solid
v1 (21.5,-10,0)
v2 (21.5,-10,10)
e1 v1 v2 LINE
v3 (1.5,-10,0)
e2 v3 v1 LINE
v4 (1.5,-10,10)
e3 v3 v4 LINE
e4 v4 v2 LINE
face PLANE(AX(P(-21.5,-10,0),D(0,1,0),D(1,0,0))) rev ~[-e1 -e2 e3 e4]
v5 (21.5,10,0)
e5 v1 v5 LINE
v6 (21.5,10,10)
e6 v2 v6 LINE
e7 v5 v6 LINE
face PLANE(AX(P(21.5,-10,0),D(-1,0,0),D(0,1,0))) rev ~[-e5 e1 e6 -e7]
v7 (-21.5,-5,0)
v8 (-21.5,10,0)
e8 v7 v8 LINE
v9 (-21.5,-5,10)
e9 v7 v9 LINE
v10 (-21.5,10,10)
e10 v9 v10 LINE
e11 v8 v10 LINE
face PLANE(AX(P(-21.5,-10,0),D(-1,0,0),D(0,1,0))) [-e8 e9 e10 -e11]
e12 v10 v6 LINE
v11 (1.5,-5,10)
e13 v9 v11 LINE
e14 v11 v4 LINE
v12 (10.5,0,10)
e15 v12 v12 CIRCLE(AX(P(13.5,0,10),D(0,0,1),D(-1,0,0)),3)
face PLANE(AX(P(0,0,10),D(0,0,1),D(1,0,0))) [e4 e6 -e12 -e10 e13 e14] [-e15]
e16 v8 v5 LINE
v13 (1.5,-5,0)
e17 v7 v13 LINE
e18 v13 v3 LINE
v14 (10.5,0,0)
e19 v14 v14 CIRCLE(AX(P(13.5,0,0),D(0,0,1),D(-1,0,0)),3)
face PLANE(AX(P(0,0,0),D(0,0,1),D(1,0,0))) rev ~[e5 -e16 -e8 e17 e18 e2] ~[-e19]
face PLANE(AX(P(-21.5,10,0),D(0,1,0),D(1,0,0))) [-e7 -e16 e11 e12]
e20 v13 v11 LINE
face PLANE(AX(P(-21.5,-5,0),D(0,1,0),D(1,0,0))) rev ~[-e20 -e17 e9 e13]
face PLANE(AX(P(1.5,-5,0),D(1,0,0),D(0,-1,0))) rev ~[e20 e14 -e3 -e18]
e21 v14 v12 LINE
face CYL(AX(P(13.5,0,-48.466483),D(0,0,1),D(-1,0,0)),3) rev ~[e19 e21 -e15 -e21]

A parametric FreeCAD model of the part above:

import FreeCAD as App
import Part
import Sketcher
from FreeCAD import Vector


def add_polygon(sketch, points):
    """Adds a closed chain of lines whose ends are joined by coincident constraints."""
    first, n = sketch.GeometryCount, len(points)
    for a, b in zip(points, points[1:] + points[:1]):
        sketch.addGeometry(Part.LineSegment(App.Vector(*a, 0), App.Vector(*b, 0)), False)
    for i in range(n):
        sketch.addConstraint(Sketcher.Constraint("Coincident", first + i, 2, first + (i + 1) % n, 1))

doc = App.newDocument("Part")
body = doc.addObject("PartDesign::Body", "Body")

# Sketch on XY plane
sketch1 = body.newObject("Sketcher::SketchObject", "Sketch")
sketch1.AttachmentSupport = (doc.getObject("XY_Plane"), [""])
sketch1.MapMode = "FlatFace"
add_polygon(sketch1, [(-22, 10), (-22, -10), (22, -10), (22, 10)])  # lines 0-3
sketch1.addConstraint([
    Sketcher.Constraint("Vertical", 0),
    Sketcher.Constraint("Horizontal", 1),
    Sketcher.Constraint("Vertical", 2),
    Sketcher.Constraint("Horizontal", 3),
    Sketcher.Constraint("Symmetric", 0, 2, 2, 2, -1, 1),
    Sketcher.Constraint("DistanceX", 1, 1, 1, 2, 43.0),
    Sketcher.Constraint("DistanceY", 0, 2, 0, 1, 20.0),
])
pad1 = body.newObject("PartDesign::Pad", "Pad")
pad1.Profile = sketch1
pad1.Length = 10

# Sketch on XY plane
sketch2 = body.newObject("Sketcher::SketchObject", "Sketch001")
sketch2.AttachmentSupport = (doc.getObject("XY_Plane"), [""])
sketch2.MapMode = "FlatFace"
sketch2.addGeometry(Part.Circle(Vector(13.5, 0, 0), Vector(0, 0, 1), 3), False)
sketch2.addConstraint([
    Sketcher.Constraint("PointOnObject", 0, 3, -1),
    Sketcher.Constraint("Diameter", 0, 6.0),
    Sketcher.Constraint("DistanceX", -1, 1, 0, 3, 13.5),
])
doc.recompute()
hole = body.newObject("PartDesign::Hole", "Hole")
hole.Profile = sketch2
hole.ThreadType = "None"
hole.Diameter = 6
hole.DepthType = "ThroughAll"
hole.Reversed = True

# Sketch on XY plane
sketch3 = body.newObject("Sketcher::SketchObject", "Sketch002")
sketch3.AttachmentSupport = (doc.getObject("XY_Plane"), [""])
sketch3.MapMode = "FlatFace"
add_polygon(sketch3, [(-22, -10), (-22, -5), (2, -5), (2, -10)])  # lines 0-3
sketch3.addConstraint([
    Sketcher.Constraint("Vertical", 0),
    Sketcher.Constraint("Horizontal", 1),
    Sketcher.Constraint("Vertical", 2),
    Sketcher.Constraint("Horizontal", 3),
    Sketcher.Constraint("DistanceX", 1, 1, 1, 2, 23.0),
    Sketcher.Constraint("DistanceY", 0, 1, 0, 2, 5.0),
    Sketcher.Constraint("DistanceY", 0, 2, -1, 1, 5.0),
    Sketcher.Constraint("DistanceX", 0, 2, -1, 1, 21.5),
])
pocket1 = body.newObject("PartDesign::Pocket", "Pocket")
pocket1.Profile = sketch3
pocket1.Length = 10
pocket1.Reversed = True

doc.recompute()
